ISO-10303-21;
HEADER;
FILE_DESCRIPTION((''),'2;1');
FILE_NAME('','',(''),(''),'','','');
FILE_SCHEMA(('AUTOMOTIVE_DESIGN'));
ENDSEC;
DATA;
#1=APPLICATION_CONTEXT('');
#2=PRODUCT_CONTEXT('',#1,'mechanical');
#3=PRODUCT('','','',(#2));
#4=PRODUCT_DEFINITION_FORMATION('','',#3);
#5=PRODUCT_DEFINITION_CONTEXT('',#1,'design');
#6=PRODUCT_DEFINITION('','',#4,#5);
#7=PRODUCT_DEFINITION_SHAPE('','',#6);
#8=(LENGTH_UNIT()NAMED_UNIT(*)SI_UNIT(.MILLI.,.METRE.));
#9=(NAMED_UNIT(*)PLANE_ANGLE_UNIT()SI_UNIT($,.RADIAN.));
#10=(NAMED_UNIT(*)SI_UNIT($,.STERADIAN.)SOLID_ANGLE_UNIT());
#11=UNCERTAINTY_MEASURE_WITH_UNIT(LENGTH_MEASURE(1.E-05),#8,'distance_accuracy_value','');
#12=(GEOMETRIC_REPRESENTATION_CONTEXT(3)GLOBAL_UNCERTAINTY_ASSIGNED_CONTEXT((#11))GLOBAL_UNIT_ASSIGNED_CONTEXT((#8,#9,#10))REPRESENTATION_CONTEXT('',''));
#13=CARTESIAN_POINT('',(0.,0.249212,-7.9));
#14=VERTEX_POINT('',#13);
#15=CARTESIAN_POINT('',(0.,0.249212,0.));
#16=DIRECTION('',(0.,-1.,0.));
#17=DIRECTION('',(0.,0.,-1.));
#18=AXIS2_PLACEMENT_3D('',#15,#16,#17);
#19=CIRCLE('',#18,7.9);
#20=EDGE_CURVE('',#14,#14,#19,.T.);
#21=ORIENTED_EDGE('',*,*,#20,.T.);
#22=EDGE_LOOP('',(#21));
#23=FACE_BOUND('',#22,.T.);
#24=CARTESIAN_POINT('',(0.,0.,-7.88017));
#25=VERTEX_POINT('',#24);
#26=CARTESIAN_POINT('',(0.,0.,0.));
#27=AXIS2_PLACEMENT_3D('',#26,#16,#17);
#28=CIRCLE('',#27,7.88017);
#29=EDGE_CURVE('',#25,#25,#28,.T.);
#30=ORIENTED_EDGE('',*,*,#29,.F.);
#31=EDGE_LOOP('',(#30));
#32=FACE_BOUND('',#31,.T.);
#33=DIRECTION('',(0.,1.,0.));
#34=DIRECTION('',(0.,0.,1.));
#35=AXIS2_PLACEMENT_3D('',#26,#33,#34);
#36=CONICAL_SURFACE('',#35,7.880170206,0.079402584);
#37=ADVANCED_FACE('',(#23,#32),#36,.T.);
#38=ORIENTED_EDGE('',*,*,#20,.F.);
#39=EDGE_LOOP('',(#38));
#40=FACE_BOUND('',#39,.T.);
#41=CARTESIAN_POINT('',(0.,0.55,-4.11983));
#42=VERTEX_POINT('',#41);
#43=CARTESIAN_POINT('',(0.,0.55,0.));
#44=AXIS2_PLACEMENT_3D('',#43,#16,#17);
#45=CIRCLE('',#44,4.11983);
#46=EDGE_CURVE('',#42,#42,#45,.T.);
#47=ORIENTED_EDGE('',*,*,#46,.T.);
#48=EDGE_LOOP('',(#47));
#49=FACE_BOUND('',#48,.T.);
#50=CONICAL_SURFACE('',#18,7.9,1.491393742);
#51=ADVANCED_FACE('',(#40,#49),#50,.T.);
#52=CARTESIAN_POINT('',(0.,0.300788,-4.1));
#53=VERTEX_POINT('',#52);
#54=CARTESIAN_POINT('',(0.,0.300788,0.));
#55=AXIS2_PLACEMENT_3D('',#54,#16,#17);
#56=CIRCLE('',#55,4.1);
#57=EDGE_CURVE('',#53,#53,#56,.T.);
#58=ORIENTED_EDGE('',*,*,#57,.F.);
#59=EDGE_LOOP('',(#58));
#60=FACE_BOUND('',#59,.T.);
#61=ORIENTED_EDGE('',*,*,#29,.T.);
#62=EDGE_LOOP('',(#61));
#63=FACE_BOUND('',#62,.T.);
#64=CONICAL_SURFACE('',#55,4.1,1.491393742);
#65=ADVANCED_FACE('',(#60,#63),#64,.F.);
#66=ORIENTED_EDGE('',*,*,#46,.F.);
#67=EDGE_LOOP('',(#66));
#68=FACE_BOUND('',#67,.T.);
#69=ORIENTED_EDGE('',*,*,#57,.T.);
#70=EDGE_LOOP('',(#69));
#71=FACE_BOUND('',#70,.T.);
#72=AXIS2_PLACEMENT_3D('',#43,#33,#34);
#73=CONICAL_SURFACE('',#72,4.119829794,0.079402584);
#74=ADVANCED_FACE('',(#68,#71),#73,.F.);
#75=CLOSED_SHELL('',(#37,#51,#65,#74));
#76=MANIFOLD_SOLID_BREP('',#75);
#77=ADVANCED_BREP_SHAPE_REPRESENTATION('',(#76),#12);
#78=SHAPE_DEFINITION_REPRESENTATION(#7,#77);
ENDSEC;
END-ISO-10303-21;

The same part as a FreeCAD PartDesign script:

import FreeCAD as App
import Part
import Sketcher
Q = App.Units.Quantity


def add_polygon(sketch, points):
    """Adds a closed chain of lines whose ends are joined by coincident constraints."""
    first, n = sketch.GeometryCount, len(points)
    for a, b in zip(points, points[1:] + points[:1]):
        sketch.addGeometry(Part.LineSegment(App.Vector(*a, 0), App.Vector(*b, 0)), False)
    for i in range(n):
        sketch.addConstraint(Sketcher.Constraint("Coincident", first + i, 2, first + (i + 1) % n, 1))

doc = App.newDocument("Part")
body = doc.addObject("PartDesign::Body", "Body")

sketch1 = body.newObject("Sketcher::SketchObject", "Sketch")
sketch1.AttachmentSupport = (doc.getObject("XY_Plane"), [""])
sketch1.MapMode = "FlatFace"
add_polygon(sketch1, [(4.1, 0.3), (7.88, 0), (7.9, 0.25), (4.12, 0.55)])
sketch1.addConstraint([
    Sketcher.Constraint("PointOnObject", 0, 2, -1),
    Sketcher.Constraint("Perpendicular", 0, 1),
    Sketcher.Constraint("Perpendicular", 1, 2),
    Sketcher.Constraint("Perpendicular", 2, 3),
    Sketcher.Constraint("DistanceX", -1, 1, 1, 2, Q("7.9 mm")),
    Sketcher.Constraint("DistanceX", -1, 1, 3, 2, Q("4.1 mm")),
    Sketcher.Constraint("Distance", 1, Q("0.25 mm")),
    Sketcher.Constraint("DistanceY", -1, 1, 2, 2, Q("0.55 mm")),
])
revolution = body.newObject("PartDesign::Revolution", "Revolution")
revolution.Profile = sketch1
revolution.ReferenceAxis = (sketch1, ["V_Axis"])
revolution.Angle = 360

doc.recompute()
